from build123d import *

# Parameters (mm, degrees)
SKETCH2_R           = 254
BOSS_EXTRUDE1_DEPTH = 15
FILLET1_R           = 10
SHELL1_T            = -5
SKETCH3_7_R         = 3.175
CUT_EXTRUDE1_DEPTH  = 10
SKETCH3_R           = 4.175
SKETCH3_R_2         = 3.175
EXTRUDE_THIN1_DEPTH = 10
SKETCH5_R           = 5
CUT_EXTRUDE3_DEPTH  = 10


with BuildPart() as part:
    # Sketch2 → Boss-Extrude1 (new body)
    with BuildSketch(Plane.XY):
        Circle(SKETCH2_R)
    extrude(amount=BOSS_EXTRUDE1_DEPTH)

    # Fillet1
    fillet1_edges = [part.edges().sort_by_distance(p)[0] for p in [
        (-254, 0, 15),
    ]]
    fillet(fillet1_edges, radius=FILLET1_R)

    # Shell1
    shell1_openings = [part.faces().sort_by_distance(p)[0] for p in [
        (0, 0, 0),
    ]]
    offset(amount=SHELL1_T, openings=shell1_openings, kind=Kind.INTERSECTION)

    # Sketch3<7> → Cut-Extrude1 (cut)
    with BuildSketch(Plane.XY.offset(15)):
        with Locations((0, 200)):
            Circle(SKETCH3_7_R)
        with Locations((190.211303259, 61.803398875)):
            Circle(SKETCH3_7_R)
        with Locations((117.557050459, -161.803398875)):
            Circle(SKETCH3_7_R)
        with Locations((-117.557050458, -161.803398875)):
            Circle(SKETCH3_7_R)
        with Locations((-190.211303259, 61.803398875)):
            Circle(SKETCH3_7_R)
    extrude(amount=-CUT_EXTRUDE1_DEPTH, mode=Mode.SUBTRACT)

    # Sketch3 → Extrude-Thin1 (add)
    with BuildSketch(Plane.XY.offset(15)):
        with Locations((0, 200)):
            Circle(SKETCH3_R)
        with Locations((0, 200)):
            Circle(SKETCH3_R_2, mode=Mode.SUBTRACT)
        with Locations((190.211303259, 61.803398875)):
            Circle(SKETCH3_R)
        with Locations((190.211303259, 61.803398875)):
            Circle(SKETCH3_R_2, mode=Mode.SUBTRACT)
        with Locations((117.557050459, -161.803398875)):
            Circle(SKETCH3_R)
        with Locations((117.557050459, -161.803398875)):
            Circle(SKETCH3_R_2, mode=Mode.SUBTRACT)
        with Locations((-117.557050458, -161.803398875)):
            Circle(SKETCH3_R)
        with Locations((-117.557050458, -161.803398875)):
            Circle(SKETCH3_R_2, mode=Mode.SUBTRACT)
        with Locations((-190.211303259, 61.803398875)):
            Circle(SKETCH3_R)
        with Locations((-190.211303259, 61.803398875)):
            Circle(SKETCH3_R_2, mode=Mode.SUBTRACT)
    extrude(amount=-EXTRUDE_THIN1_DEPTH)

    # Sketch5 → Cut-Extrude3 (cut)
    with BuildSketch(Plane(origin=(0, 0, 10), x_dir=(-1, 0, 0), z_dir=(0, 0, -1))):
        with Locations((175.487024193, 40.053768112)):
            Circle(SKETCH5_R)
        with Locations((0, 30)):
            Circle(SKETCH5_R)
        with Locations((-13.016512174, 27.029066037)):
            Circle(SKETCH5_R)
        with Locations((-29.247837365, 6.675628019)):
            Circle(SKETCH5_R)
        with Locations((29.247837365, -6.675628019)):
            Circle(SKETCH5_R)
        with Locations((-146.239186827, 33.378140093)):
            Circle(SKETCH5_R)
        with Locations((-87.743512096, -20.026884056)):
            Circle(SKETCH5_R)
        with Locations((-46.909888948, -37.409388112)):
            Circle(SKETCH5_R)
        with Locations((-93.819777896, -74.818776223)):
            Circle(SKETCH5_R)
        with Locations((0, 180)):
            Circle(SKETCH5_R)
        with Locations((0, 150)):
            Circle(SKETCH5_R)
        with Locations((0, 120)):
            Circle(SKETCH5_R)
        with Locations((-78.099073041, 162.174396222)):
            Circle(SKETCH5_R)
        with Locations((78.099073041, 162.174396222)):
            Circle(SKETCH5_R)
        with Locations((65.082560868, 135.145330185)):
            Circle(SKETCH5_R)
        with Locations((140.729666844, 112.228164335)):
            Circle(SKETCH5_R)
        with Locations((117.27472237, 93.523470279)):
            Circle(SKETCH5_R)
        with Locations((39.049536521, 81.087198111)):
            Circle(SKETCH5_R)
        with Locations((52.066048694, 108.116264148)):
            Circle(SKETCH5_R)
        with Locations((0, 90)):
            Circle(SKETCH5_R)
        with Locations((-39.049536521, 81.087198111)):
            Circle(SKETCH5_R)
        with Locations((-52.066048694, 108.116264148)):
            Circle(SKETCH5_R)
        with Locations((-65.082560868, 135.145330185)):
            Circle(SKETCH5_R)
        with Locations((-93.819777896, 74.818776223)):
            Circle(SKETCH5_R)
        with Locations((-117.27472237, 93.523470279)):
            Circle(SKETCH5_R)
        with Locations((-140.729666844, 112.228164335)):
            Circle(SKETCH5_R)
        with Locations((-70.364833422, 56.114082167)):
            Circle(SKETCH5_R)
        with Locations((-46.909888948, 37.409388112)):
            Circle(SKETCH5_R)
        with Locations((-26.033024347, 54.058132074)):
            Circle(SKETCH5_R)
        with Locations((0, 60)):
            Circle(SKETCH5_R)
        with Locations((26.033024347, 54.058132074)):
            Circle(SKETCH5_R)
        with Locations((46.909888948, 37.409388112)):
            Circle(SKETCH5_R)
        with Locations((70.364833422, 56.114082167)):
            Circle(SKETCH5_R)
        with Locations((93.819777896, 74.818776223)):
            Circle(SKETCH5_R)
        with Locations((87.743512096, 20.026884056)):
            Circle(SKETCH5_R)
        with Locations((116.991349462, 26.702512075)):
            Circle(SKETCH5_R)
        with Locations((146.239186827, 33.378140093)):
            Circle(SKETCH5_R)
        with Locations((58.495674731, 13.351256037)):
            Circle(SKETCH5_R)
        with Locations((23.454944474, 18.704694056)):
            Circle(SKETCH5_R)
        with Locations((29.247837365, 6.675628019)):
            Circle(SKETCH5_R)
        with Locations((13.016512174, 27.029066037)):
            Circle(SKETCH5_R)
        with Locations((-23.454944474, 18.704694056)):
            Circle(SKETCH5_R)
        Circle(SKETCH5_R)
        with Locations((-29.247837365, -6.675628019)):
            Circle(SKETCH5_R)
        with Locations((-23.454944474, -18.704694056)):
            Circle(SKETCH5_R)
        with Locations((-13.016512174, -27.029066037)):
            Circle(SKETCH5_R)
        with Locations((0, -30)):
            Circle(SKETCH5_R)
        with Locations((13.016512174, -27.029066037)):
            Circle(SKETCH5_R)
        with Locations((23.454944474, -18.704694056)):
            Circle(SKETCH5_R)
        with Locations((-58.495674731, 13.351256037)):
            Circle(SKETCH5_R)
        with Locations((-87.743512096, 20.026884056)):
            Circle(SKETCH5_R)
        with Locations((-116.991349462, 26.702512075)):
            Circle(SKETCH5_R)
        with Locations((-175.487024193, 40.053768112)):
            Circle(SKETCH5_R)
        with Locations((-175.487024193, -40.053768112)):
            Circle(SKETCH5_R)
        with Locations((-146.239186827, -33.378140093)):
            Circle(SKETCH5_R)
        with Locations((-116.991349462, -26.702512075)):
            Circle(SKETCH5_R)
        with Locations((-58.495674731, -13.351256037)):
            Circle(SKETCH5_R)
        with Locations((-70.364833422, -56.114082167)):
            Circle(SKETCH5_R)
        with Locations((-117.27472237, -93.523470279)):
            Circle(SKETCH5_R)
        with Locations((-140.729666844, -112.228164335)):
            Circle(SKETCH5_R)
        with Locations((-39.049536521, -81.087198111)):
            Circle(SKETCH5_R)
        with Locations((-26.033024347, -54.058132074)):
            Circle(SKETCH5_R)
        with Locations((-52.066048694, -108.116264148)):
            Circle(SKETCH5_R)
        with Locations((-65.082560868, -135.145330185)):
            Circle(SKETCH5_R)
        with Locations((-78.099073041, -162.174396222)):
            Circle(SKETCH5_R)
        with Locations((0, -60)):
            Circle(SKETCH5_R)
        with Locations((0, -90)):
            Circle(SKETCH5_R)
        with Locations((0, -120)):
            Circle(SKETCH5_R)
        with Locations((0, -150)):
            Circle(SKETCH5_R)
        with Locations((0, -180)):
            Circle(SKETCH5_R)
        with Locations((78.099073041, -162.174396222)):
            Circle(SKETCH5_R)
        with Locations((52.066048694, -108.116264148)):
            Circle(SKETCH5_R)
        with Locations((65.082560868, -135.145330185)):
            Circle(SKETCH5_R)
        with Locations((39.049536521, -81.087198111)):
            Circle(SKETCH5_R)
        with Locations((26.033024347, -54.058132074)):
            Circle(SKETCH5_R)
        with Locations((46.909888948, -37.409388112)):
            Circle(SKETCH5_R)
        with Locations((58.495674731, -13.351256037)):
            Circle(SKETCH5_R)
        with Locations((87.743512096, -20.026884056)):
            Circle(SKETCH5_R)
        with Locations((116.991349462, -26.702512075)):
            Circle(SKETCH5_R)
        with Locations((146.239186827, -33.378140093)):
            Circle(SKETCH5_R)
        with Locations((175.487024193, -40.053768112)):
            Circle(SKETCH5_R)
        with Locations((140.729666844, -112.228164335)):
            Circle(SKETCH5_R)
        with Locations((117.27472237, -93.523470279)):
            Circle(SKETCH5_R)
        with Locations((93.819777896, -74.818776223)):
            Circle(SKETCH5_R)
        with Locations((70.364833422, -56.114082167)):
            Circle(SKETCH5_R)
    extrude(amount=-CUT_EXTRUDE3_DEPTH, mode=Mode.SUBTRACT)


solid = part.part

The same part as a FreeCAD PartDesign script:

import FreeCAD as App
import Part
import Sketcher
Q = App.Units.Quantity


def edges_at(feature, points):
    """Names of the edges that pass closest to the given points."""
    edges = feature.Shape.Edges
    near = lambda p: min(range(len(edges)), key=lambda i: edges[i].distToShape(Part.Vertex(*p))[0])
    return sorted({f"Edge{near(p) + 1}" for p in points})


def faces_at(feature, points):
    """Names of the faces that lie closest to the given points."""
    faces = feature.Shape.Faces
    near = lambda p: min(range(len(faces)), key=lambda i: faces[i].distToShape(Part.Vertex(*p))[0])
    return sorted({f"Face{near(p) + 1}" for p in points})

doc = App.newDocument("Part")
body = doc.addObject("PartDesign::Body", "Body")

# Sketch on XY plane
sketch1 = body.newObject("Sketcher::SketchObject", "Sketch")
sketch1.AttachmentSupport = (doc.getObject("XY_Plane"), [""])
sketch1.MapMode = "FlatFace"
sketch1.addGeometry(Part.Circle(App.Vector(0, 0, 0), App.Vector(0, 0, 1), 254), False)
sketch1.addConstraint([
    Sketcher.Constraint("Coincident", 0, 3, -1, 1),
    Sketcher.Constraint("Diameter", 0, Q("508 mm")),
])
pad1 = body.newObject("PartDesign::Pad", "Pad")
pad1.Profile = sketch1
pad1.Length = 15
doc.recompute()

fillet = body.newObject("PartDesign::Fillet", "Fillet")
fillet.Base = (pad1, edges_at(pad1, [(-254, 0, 15)]))
fillet.Radius = 10
doc.recompute()

thickness = body.newObject("PartDesign::Thickness", "Thickness")
thickness.Base = (fillet, faces_at(fillet, [(0, 0, 0)]))
thickness.Value = 5
thickness.Reversed = True
thickness.Join = "Intersection"

# Sketch on XY plane
sketch2 = body.newObject("Sketcher::SketchObject", "Sketch001")
sketch2.AttachmentSupport = (doc.getObject("XY_Plane"), [""])
sketch2.MapMode = "FlatFace"
sketch2.AttachmentOffset = App.Placement(App.Vector(0, 0, 15), App.Rotation())
sketch2.addGeometry([
    Part.Circle(App.Vector(0, 200, 0), App.Vector(0, 0, 1), 3.2),  # 0
    Part.Circle(App.Vector(190.2, 61.8, 0), App.Vector(0, 0, 1), 3.2),  # 1
    Part.Circle(App.Vector(117.6, -161.8, 0), App.Vector(0, 0, 1), 3.2),  # 2
    Part.Circle(App.Vector(-117.6, -161.8, 0), App.Vector(0, 0, 1), 3.2),  # 3
    Part.Circle(App.Vector(-190.2, 61.8, 0), App.Vector(0, 0, 1), 3.2),  # 4
], False)
sketch2.addConstraint([
    Sketcher.Constraint("Equal", 0, 1),
    Sketcher.Constraint("Equal", 1, 2),
    Sketcher.Constraint("Equal", 2, 3),
    Sketcher.Constraint("Equal", 3, 4),
    Sketcher.Constraint("Symmetric", 2, 3, 3, 3, -2),
    Sketcher.Constraint("Symmetric", 1, 3, 4, 3, -2),
    Sketcher.Constraint("PointOnObject", 0, 3, -2),
    Sketcher.Constraint("Diameter", 0, Q("6.35 mm")),
    Sketcher.Constraint("DistanceY", -1, 1, 0, 3, Q("200 mm")),
    Sketcher.Constraint("DistanceY", -1, 1, 1, 3, Q("61.803399 mm")),
    Sketcher.Constraint("DistanceY", 2, 3, -1, 1, Q("161.803399 mm")),
    Sketcher.Constraint("DistanceX", 3, 3, 2, 3, Q("235.114101 mm")),
    Sketcher.Constraint("DistanceX", -1, 1, 1, 3, Q("190.211303 mm")),
])
pocket1 = body.newObject("PartDesign::Pocket", "Pocket")
pocket1.Profile = sketch2
pocket1.Length = 10

# Sketch on XY plane
sketch3 = body.newObject("Sketcher::SketchObject", "Sketch002")
sketch3.AttachmentSupport = (doc.getObject("XY_Plane"), [""])
sketch3.MapMode = "FlatFace"
sketch3.AttachmentOffset = App.Placement(App.Vector(0, 0, 15), App.Rotation())
sketch3.addGeometry([
    Part.Circle(App.Vector(0, 200, 0), App.Vector(0, 0, 1), 4.2),  # 0
    Part.Circle(App.Vector(0, 200, 0), App.Vector(0, 0, 1), 3.2),  # 1
    Part.Circle(App.Vector(190.2, 61.8, 0), App.Vector(0, 0, 1), 4.2),  # 2
    Part.Circle(App.Vector(190.2, 61.8, 0), App.Vector(0, 0, 1), 3.2),  # 3
    Part.Circle(App.Vector(117.6, -161.8, 0), App.Vector(0, 0, 1), 4.2),  # 4
    Part.Circle(App.Vector(117.6, -161.8, 0), App.Vector(0, 0, 1), 3.2),  # 5
    Part.Circle(App.Vector(-117.6, -161.8, 0), App.Vector(0, 0, 1), 4.2),  # 6
    Part.Circle(App.Vector(-117.6, -161.8, 0), App.Vector(0, 0, 1), 3.2),  # 7
    Part.Circle(App.Vector(-190.2, 61.8, 0), App.Vector(0, 0, 1), 4.2),  # 8
    Part.Circle(App.Vector(-190.2, 61.8, 0), App.Vector(0, 0, 1), 3.2),  # 9
], False)
sketch3.addConstraint([
    Sketcher.Constraint("Coincident", 1, 3, 0, 3),
    Sketcher.Constraint("Coincident", 3, 3, 2, 3),
    Sketcher.Constraint("Coincident", 5, 3, 4, 3),
    Sketcher.Constraint("Coincident", 7, 3, 6, 3),
    Sketcher.Constraint("Coincident", 9, 3, 8, 3),
    Sketcher.Constraint("Equal", 0, 2),
    Sketcher.Constraint("Equal", 1, 3),
    Sketcher.Constraint("Equal", 2, 4),
    Sketcher.Constraint("Equal", 3, 5),
    Sketcher.Constraint("Equal", 4, 6),
    Sketcher.Constraint("Equal", 5, 7),
    Sketcher.Constraint("Equal", 6, 8),
    Sketcher.Constraint("Equal", 7, 9),
    Sketcher.Constraint("Symmetric", 4, 3, 6, 3, -2),
    Sketcher.Constraint("Symmetric", 2, 3, 8, 3, -2),
    Sketcher.Constraint("PointOnObject", 0, 3, -2),
    Sketcher.Constraint("Diameter", 0, Q("8.35 mm")),
    Sketcher.Constraint("Diameter", 1, Q("6.35 mm")),
    Sketcher.Constraint("DistanceY", -1, 1, 0, 3, Q("200 mm")),
    Sketcher.Constraint("DistanceY", -1, 1, 2, 3, Q("61.803399 mm")),
    Sketcher.Constraint("DistanceY", 4, 3, -1, 1, Q("161.803399 mm")),
    Sketcher.Constraint("DistanceX", 6, 3, 4, 3, Q("235.114101 mm")),
    Sketcher.Constraint("DistanceX", -1, 1, 2, 3, Q("190.211303 mm")),
])
pad2 = body.newObject("PartDesign::Pad", "Pad001")
pad2.Profile = sketch3
pad2.Length = 10
pad2.Reversed = True

# Sketch on XY plane
sketch4 = body.newObject("Sketcher::SketchObject", "Sketch003")
sketch4.AttachmentSupport = (doc.getObject("XY_Plane"), [""])
sketch4.MapMode = "FlatFace"
sketch4.AttachmentOffset = App.Placement(App.Vector(0, 0, 10), App.Rotation())
sketch4.addGeometry([
    Part.Circle(App.Vector(-175, 40, 0), App.Vector(0, 0, 1), 5),  # 0
    Part.Circle(App.Vector(0, 30, 0), App.Vector(0, 0, 1), 5),  # 1
    Part.Circle(App.Vector(13, 27, 0), App.Vector(0, 0, 1), 5),  # 2
    Part.Circle(App.Vector(29, 7, 0), App.Vector(0, 0, 1), 5),  # 3
    Part.Circle(App.Vector(-29, -7, 0), App.Vector(0, 0, 1), 5),  # 4
    Part.Circle(App.Vector(146, 33, 0), App.Vector(0, 0, 1), 5),  # 5
    Part.Circle(App.Vector(88, -20, 0), App.Vector(0, 0, 1), 5),  # 6
    Part.Circle(App.Vector(47, -37, 0), App.Vector(0, 0, 1), 5),  # 7
    Part.Circle(App.Vector(94, -75, 0), App.Vector(0, 0, 1), 5),  # 8
    Part.Circle(App.Vector(0, 180, 0), App.Vector(0, 0, 1), 5),  # 9
    Part.Circle(App.Vector(0, 150, 0), App.Vector(0, 0, 1), 5),  # 10
    Part.Circle(App.Vector(0, 120, 0), App.Vector(0, 0, 1), 5),  # 11
    Part.Circle(App.Vector(78, 162, 0), App.Vector(0, 0, 1), 5),  # 12
    Part.Circle(App.Vector(-78, 162, 0), App.Vector(0, 0, 1), 5),  # 13
    Part.Circle(App.Vector(-65, 135, 0), App.Vector(0, 0, 1), 5),  # 14
    Part.Circle(App.Vector(-141, 112, 0), App.Vector(0, 0, 1), 5),  # 15
    Part.Circle(App.Vector(-117, 94, 0), App.Vector(0, 0, 1), 5),  # 16
    Part.Circle(App.Vector(-39, 81, 0), App.Vector(0, 0, 1), 5),  # 17
    Part.Circle(App.Vector(-52, 108, 0), App.Vector(0, 0, 1), 5),  # 18
    Part.Circle(App.Vector(0, 90, 0), App.Vector(0, 0, 1), 5),  # 19
    Part.Circle(App.Vector(39, 81, 0), App.Vector(0, 0, 1), 5),  # 20
    Part.Circle(App.Vector(52, 108, 0), App.Vector(0, 0, 1), 5),  # 21
    Part.Circle(App.Vector(65, 135, 0), App.Vector(0, 0, 1), 5),  # 22
    Part.Circle(App.Vector(94, 75, 0), App.Vector(0, 0, 1), 5),  # 23
    Part.Circle(App.Vector(117, 94, 0), App.Vector(0, 0, 1), 5),  # 24
    Part.Circle(App.Vector(141, 112, 0), App.Vector(0, 0, 1), 5),  # 25
    Part.Circle(App.Vector(70, 56, 0), App.Vector(0, 0, 1), 5),  # 26
    Part.Circle(App.Vector(47, 37, 0), App.Vector(0, 0, 1), 5),  # 27
    Part.Circle(App.Vector(26, 54, 0), App.Vector(0, 0, 1), 5),  # 28
    Part.Circle(App.Vector(0, 60, 0), App.Vector(0, 0, 1), 5),  # 29
    Part.Circle(App.Vector(-26, 54, 0), App.Vector(0, 0, 1), 5),  # 30
    Part.Circle(App.Vector(-47, 37, 0), App.Vector(0, 0, 1), 5),  # 31
    Part.Circle(App.Vector(-70, 56, 0), App.Vector(0, 0, 1), 5),  # 32
    Part.Circle(App.Vector(-94, 75, 0), App.Vector(0, 0, 1), 5),  # 33
    Part.Circle(App.Vector(-88, 20, 0), App.Vector(0, 0, 1), 5),  # 34
    Part.Circle(App.Vector(-117, 27, 0), App.Vector(0, 0, 1), 5),  # 35
    Part.Circle(App.Vector(-146, 33, 0), App.Vector(0, 0, 1), 5),  # 36
    Part.Circle(App.Vector(-58, 13, 0), App.Vector(0, 0, 1), 5),  # 37
    Part.Circle(App.Vector(-23, 19, 0), App.Vector(0, 0, 1), 5),  # 38
    Part.Circle(App.Vector(-29, 7, 0), App.Vector(0, 0, 1), 5),  # 39
    Part.Circle(App.Vector(-13, 27, 0), App.Vector(0, 0, 1), 5),  # 40
    Part.Circle(App.Vector(23, 19, 0), App.Vector(0, 0, 1), 5),  # 41
    Part.Circle(App.Vector(0, 0, 0), App.Vector(0, 0, 1), 5),  # 42
    Part.Circle(App.Vector(29, -7, 0), App.Vector(0, 0, 1), 5),  # 43
    Part.Circle(App.Vector(23, -19, 0), App.Vector(0, 0, 1), 5),  # 44
    Part.Circle(App.Vector(13, -27, 0), App.Vector(0, 0, 1), 5),  # 45
    Part.Circle(App.Vector(0, -30, 0), App.Vector(0, 0, 1), 5),  # 46
    Part.Circle(App.Vector(-13, -27, 0), App.Vector(0, 0, 1), 5),  # 47
    Part.Circle(App.Vector(-23, -19, 0), App.Vector(0, 0, 1), 5),  # 48
    Part.Circle(App.Vector(58, 13, 0), App.Vector(0, 0, 1), 5),  # 49
    Part.Circle(App.Vector(88, 20, 0), App.Vector(0, 0, 1), 5),  # 50
    Part.Circle(App.Vector(117, 27, 0), App.Vector(0, 0, 1), 5),  # 51
    Part.Circle(App.Vector(175, 40, 0), App.Vector(0, 0, 1), 5),  # 52
    Part.Circle(App.Vector(175, -40, 0), App.Vector(0, 0, 1), 5),  # 53
    Part.Circle(App.Vector(146, -33, 0), App.Vector(0, 0, 1), 5),  # 54
    Part.Circle(App.Vector(117, -27, 0), App.Vector(0, 0, 1), 5),  # 55
    Part.Circle(App.Vector(58, -13, 0), App.Vector(0, 0, 1), 5),  # 56
    Part.Circle(App.Vector(70, -56, 0), App.Vector(0, 0, 1), 5),  # 57
    Part.Circle(App.Vector(117, -94, 0), App.Vector(0, 0, 1), 5),  # 58
    Part.Circle(App.Vector(141, -112, 0), App.Vector(0, 0, 1), 5),  # 59
    Part.Circle(App.Vector(39, -81, 0), App.Vector(0, 0, 1), 5),  # 60
    Part.Circle(App.Vector(26, -54, 0), App.Vector(0, 0, 1), 5),  # 61
    Part.Circle(App.Vector(52, -108, 0), App.Vector(0, 0, 1), 5),  # 62
    Part.Circle(App.Vector(65, -135, 0), App.Vector(0, 0, 1), 5),  # 63
    Part.Circle(App.Vector(78, -162, 0), App.Vector(0, 0, 1), 5),  # 64
    Part.Circle(App.Vector(0, -60, 0), App.Vector(0, 0, 1), 5),  # 65
    Part.Circle(App.Vector(0, -90, 0), App.Vector(0, 0, 1), 5),  # 66
    Part.Circle(App.Vector(0, -120, 0), App.Vector(0, 0, 1), 5),  # 67
    Part.Circle(App.Vector(0, -150, 0), App.Vector(0, 0, 1), 5),  # 68
    Part.Circle(App.Vector(0, -180, 0), App.Vector(0, 0, 1), 5),  # 69
    Part.Circle(App.Vector(-78, -162, 0), App.Vector(0, 0, 1), 5),  # 70
    Part.Circle(App.Vector(-52, -108, 0), App.Vector(0, 0, 1), 5),  # 71
    Part.Circle(App.Vector(-65, -135, 0), App.Vector(0, 0, 1), 5),  # 72
    Part.Circle(App.Vector(-39, -81, 0), App.Vector(0, 0, 1), 5),  # 73
    Part.Circle(App.Vector(-26, -54, 0), App.Vector(0, 0, 1), 5),  # 74
    Part.Circle(App.Vector(-47, -37, 0), App.Vector(0, 0, 1), 5),  # 75
    Part.Circle(App.Vector(-58, -13, 0), App.Vector(0, 0, 1), 5),  # 76
    Part.Circle(App.Vector(-88, -20, 0), App.Vector(0, 0, 1), 5),  # 77
    Part.Circle(App.Vector(-117, -27, 0), App.Vector(0, 0, 1), 5),  # 78
    Part.Circle(App.Vector(-146, -33, 0), App.Vector(0, 0, 1), 5),  # 79
    Part.Circle(App.Vector(-175, -40, 0), App.Vector(0, 0, 1), 5),  # 80
    Part.Circle(App.Vector(-141, -112, 0), App.Vector(0, 0, 1), 5),  # 81
    Part.Circle(App.Vector(-117, -94, 0), App.Vector(0, 0, 1), 5),  # 82
    Part.Circle(App.Vector(-94, -75, 0), App.Vector(0, 0, 1), 5),  # 83
    Part.Circle(App.Vector(-70, -56, 0), App.Vector(0, 0, 1), 5),  # 84
], False)
sketch4.addConstraint([
    Sketcher.Constraint("Coincident", 42, 3, -1, 1),
    Sketcher.Constraint("Equal", 0, 1),
    Sketcher.Constraint("Equal", 1, 2),
    Sketcher.Constraint("Equal", 2, 3),
    Sketcher.Constraint("Equal", 3, 4),
    Sketcher.Constraint("Equal", 4, 5),
    Sketcher.Constraint("Equal", 5, 6),
    Sketcher.Constraint("Equal", 6, 7),
    Sketcher.Constraint("Equal", 7, 8),
    Sketcher.Constraint("Equal", 8, 9),
    Sketcher.Constraint("Equal", 9, 10),
    Sketcher.Constraint("Equal", 10, 11),
    Sketcher.Constraint("Equal", 11, 12),
    Sketcher.Constraint("Equal", 12, 13),
    Sketcher.Constraint("Equal", 13, 14),
    Sketcher.Constraint("Equal", 14, 15),
    Sketcher.Constraint("Equal", 15, 16),
    Sketcher.Constraint("Equal", 16, 17),
    Sketcher.Constraint("Equal", 17, 18),
    Sketcher.Constraint("Equal", 18, 19),
    Sketcher.Constraint("Equal", 19, 20),
    Sketcher.Constraint("Equal", 20, 21),
    Sketcher.Constraint("Equal", 21, 22),
    Sketcher.Constraint("Equal", 22, 23),
    Sketcher.Constraint("Equal", 23, 24),
    Sketcher.Constraint("Equal", 24, 25),
    Sketcher.Constraint("Equal", 25, 26),
    Sketcher.Constraint("Equal", 26, 27),
    Sketcher.Constraint("Equal", 27, 28),
    Sketcher.Constraint("Equal", 28, 29),
    Sketcher.Constraint("Equal", 29, 30),
    Sketcher.Constraint("Equal", 30, 31),
    Sketcher.Constraint("Equal", 31, 32),
    Sketcher.Constraint("Equal", 32, 33),
    Sketcher.Constraint("Equal", 33, 34),
    Sketcher.Constraint("Equal", 34, 35),
    Sketcher.Constraint("Equal", 35, 36),
    Sketcher.Constraint("Equal", 36, 37),
    Sketcher.Constraint("Equal", 37, 38),
    Sketcher.Constraint("Equal", 38, 39),
    Sketcher.Constraint("Equal", 39, 40),
    Sketcher.Constraint("Equal", 40, 41),
    Sketcher.Constraint("Equal", 41, 42),
    Sketcher.Constraint("Equal", 42, 43),
    Sketcher.Constraint("Equal", 43, 44),
    Sketcher.Constraint("Equal", 44, 45),
    Sketcher.Constraint("Equal", 45, 46),
    Sketcher.Constraint("Equal", 46, 47),
    Sketcher.Constraint("Equal", 47, 48),
    Sketcher.Constraint("Equal", 48, 49),
    Sketcher.Constraint("Equal", 49, 50),
    Sketcher.Constraint("Equal", 50, 51),
    Sketcher.Constraint("Equal", 51, 52),
    Sketcher.Constraint("Equal", 52, 53),
    Sketcher.Constraint("Equal", 53, 54),
    Sketcher.Constraint("Equal", 54, 55),
    Sketcher.Constraint("Equal", 55, 56),
    Sketcher.Constraint("Equal", 56, 57),
    Sketcher.Constraint("Equal", 57, 58),
    Sketcher.Constraint("Equal", 58, 59),
    Sketcher.Constraint("Equal", 59, 60),
    Sketcher.Constraint("Equal", 60, 61),
    Sketcher.Constraint("Equal", 61, 62),
    Sketcher.Constraint("Equal", 62, 63),
    Sketcher.Constraint("Equal", 63, 64),
    Sketcher.Constraint("Equal", 64, 65),
    Sketcher.Constraint("Equal", 65, 66),
    Sketcher.Constraint("Equal", 66, 67),
    Sketcher.Constraint("Equal", 67, 68),
    Sketcher.Constraint("Equal", 68, 69),
    Sketcher.Constraint("Equal", 69, 70),
    Sketcher.Constraint("Equal", 70, 71),
    Sketcher.Constraint("Equal", 71, 72),
    Sketcher.Constraint("Equal", 72, 73),
    Sketcher.Constraint("Equal", 73, 74),
    Sketcher.Constraint("Equal", 74, 75),
    Sketcher.Constraint("Equal", 75, 76),
    Sketcher.Constraint("Equal", 76, 77),
    Sketcher.Constraint("Equal", 77, 78),
    Sketcher.Constraint("Equal", 78, 79),
    Sketcher.Constraint("Equal", 79, 80),
    Sketcher.Constraint("Equal", 80, 81),
    Sketcher.Constraint("Equal", 81, 82),
    Sketcher.Constraint("Equal", 82, 83),
    Sketcher.Constraint("Equal", 83, 84),
    Sketcher.Constraint("Symmetric", 3, 3, 4, 3, -1, 1),
    Sketcher.Constraint("Symmetric", 7, 3, 31, 3, -1, 1),
    Sketcher.Constraint("Symmetric", 8, 3, 33, 3, -1, 1),
    Sketcher.Constraint("Symmetric", 6, 3, 34, 3, -1, 1),
    Sketcher.Constraint("Symmetric", 39, 3, 43, 3, -1, 1),
    Sketcher.Constraint("Symmetric", 38, 3, 44, 3, -1, 1),
    Sketcher.Constraint("Symmetric", 40, 3, 45, 3, -1, 1),
    Sketcher.Constraint("Symmetric", 1, 3, 46, 3, -1, 1),
    Sketcher.Constraint("Symmetric", 2, 3, 47, 3, -1, 1),
    Sketcher.Constraint("Symmetric", 41, 3, 48, 3, -1, 1),
    Sketcher.Constraint("Symmetric", 0, 3, 53, 3, -1, 1),
    Sketcher.Constraint("Symmetric", 36, 3, 54, 3, -1, 1),
    Sketcher.Constraint("Symmetric", 35, 3, 55, 3, -1, 1),
    Sketcher.Constraint("Symmetric", 37, 3, 56, 3, -1, 1),
    Sketcher.Constraint("Symmetric", 32, 3, 57, 3, -1, 1),
    Sketcher.Constraint("Symmetric", 16, 3, 58, 3, -1, 1),
    Sketcher.Constraint("Symmetric", 15, 3, 59, 3, -1, 1),
    Sketcher.Constraint("Symmetric", 17, 3, 60, 3, -1, 1),
    Sketcher.Constraint("Symmetric", 30, 3, 61, 3, -1, 1),
    Sketcher.Constraint("Symmetric", 18, 3, 62, 3, -1, 1),
    Sketcher.Constraint("Symmetric", 14, 3, 63, 3, -1, 1),
    Sketcher.Constraint("Symmetric", 13, 3, 64, 3, -1, 1),
    Sketcher.Constraint("Symmetric", 29, 3, 65, 3, -1, 1),
    Sketcher.Constraint("Symmetric", 19, 3, 66, 3, -1, 1),
    Sketcher.Constraint("Symmetric", 11, 3, 67, 3, -1, 1),
    Sketcher.Constraint("Symmetric", 10, 3, 68, 3, -1, 1),
    Sketcher.Constraint("Symmetric", 9, 3, 69, 3, -1, 1),
    Sketcher.Constraint("Symmetric", 12, 3, 70, 3, -1, 1),
    Sketcher.Constraint("Symmetric", 21, 3, 71, 3, -1, 1),
    Sketcher.Constraint("Symmetric", 22, 3, 72, 3, -1, 1),
    Sketcher.Constraint("Symmetric", 20, 3, 73, 3, -1, 1),
    Sketcher.Constraint("Symmetric", 28, 3, 74, 3, -1, 1),
    Sketcher.Constraint("Symmetric", 27, 3, 75, 3, -1, 1),
    Sketcher.Constraint("Symmetric", 49, 3, 76, 3, -1, 1),
    Sketcher.Constraint("Symmetric", 50, 3, 77, 3, -1, 1),
    Sketcher.Constraint("Symmetric", 51, 3, 78, 3, -1, 1),
    Sketcher.Constraint("Symmetric", 5, 3, 79, 3, -1, 1),
    Sketcher.Constraint("Symmetric", 52, 3, 80, 3, -1, 1),
    Sketcher.Constraint("Symmetric", 25, 3, 81, 3, -1, 1),
    Sketcher.Constraint("Symmetric", 24, 3, 82, 3, -1, 1),
    Sketcher.Constraint("Symmetric", 23, 3, 83, 3, -1, 1),
    Sketcher.Constraint("Symmetric", 26, 3, 84, 3, -1, 1),
    Sketcher.Constraint("Symmetric", 12, 3, 13, 3, -2),
    Sketcher.Constraint("Symmetric", 17, 3, 20, 3, -2),
    Sketcher.Constraint("Symmetric", 18, 3, 21, 3, -2),
    Sketcher.Constraint("Symmetric", 14, 3, 22, 3, -2),
    Sketcher.Constraint("Symmetric", 16, 3, 24, 3, -2),
    Sketcher.Constraint("Symmetric", 15, 3, 25, 3, -2),
    Sketcher.Constraint("Symmetric", 28, 3, 30, 3, -2),
    Sketcher.Constraint("Symmetric", 27, 3, 31, 3, -2),
    Sketcher.Constraint("Symmetric", 26, 3, 32, 3, -2),
    Sketcher.Constraint("Symmetric", 23, 3, 33, 3, -2),
    Sketcher.Constraint("Symmetric", 5, 3, 36, 3, -2),
    Sketcher.Constraint("Symmetric", 3, 3, 39, 3, -2),
    Sketcher.Constraint("Symmetric", 2, 3, 40, 3, -2),
    Sketcher.Constraint("Symmetric", 38, 3, 41, 3, -2),
    Sketcher.Constraint("Symmetric", 37, 3, 49, 3, -2),
    Sketcher.Constraint("Symmetric", 34, 3, 50, 3, -2),
    Sketcher.Constraint("Symmetric", 35, 3, 51, 3, -2),
    Sketcher.Constraint("Symmetric", 0, 3, 52, 3, -2),
    Sketcher.Constraint("PointOnObject", 1, 3, -2),
    Sketcher.Constraint("PointOnObject", 9, 3, -2),
    Sketcher.Constraint("PointOnObject", 10, 3, -2),
    Sketcher.Constraint("PointOnObject", 11, 3, -2),
    Sketcher.Constraint("PointOnObject", 19, 3, -2),
    Sketcher.Constraint("PointOnObject", 29, 3, -2),
    Sketcher.Constraint("Diameter", 0, Q("10 mm")),
    Sketcher.Constraint("DistanceY", -1, 1, 1, 3, Q("30 mm")),
    Sketcher.Constraint("DistanceY", -1, 1, 9, 3, Q("180 mm")),
    Sketcher.Constraint("DistanceY", -1, 1, 10, 3, Q("150 mm")),
    Sketcher.Constraint("DistanceY", -1, 1, 11, 3, Q("120 mm")),
    Sketcher.Constraint("DistanceY", -1, 1, 19, 3, Q("90 mm")),
    Sketcher.Constraint("DistanceY", -1, 1, 29, 3, Q("60 mm")),
    Sketcher.Constraint("DistanceY", -1, 1, 17, 3, Q("81.087198 mm")),
    Sketcher.Constraint("DistanceY", -1, 1, 0, 3, Q("40.053768 mm")),
    Sketcher.Constraint("DistanceY", -1, 1, 3, 3, Q("6.675628 mm")),
    Sketcher.Constraint("DistanceY", -1, 1, 5, 3, Q("33.37814 mm")),
    Sketcher.Constraint("DistanceX", -1, 1, 7, 3, Q("46.909889 mm")),
    Sketcher.Constraint("DistanceY", 7, 3, -1, 1, Q("37.409388 mm")),
    Sketcher.Constraint("DistanceX", 14, 3, -1, 1, Q("65.082561 mm")),
    Sketcher.Constraint("DistanceY", -1, 1, 14, 3, Q("135.14533 mm")),
    Sketcher.Constraint("DistanceY", -1, 1, 16, 3, Q("93.52347 mm")),
    Sketcher.Constraint("DistanceX", 18, 3, -1, 1, Q("52.066049 mm")),
    Sketcher.Constraint("DistanceX", 35, 3, -1, 1, Q("116.991349 mm")),
    Sketcher.Constraint("DistanceX", 0, 3, -1, 1, Q("175.487024 mm")),
    Sketcher.Constraint("DistanceX", -1, 1, 2, 3, Q("13.016512 mm")),
    Sketcher.Constraint("DistanceY", -1, 1, 2, 3, Q("27.029066 mm")),
    Sketcher.Constraint("DistanceX", -1, 1, 3, 3, Q("29.247837 mm")),
    Sketcher.Constraint("DistanceX", -1, 1, 5, 3, Q("146.239187 mm")),
    Sketcher.Constraint("DistanceX", -1, 1, 6, 3, Q("87.743512 mm")),
    Sketcher.Constraint("DistanceY", 6, 3, -1, 1, Q("20.026884 mm")),
    Sketcher.Constraint("DistanceX", -1, 1, 8, 3, Q("93.819778 mm")),
    Sketcher.Constraint("DistanceY", 8, 3, -1, 1, Q("74.818776 mm")),
    Sketcher.Constraint("DistanceX", -1, 1, 12, 3, Q("78.099073 mm")),
    Sketcher.Constraint("DistanceY", -1, 1, 12, 3, Q("162.174396 mm")),
    Sketcher.Constraint("DistanceX", 15, 3, -1, 1, Q("140.729667 mm")),
    Sketcher.Constraint("DistanceY", -1, 1, 15, 3, Q("112.228164 mm")),
    Sketcher.Constraint("DistanceX", 16, 3, -1, 1, Q("117.274722 mm")),
    Sketcher.Constraint("DistanceX", 17, 3, -1, 1, Q("39.049537 mm")),
    Sketcher.Constraint("DistanceY", -1, 1, 18, 3, Q("108.116264 mm")),
    Sketcher.Constraint("DistanceX", -1, 1, 26, 3, Q("70.364833 mm")),
    Sketcher.Constraint("DistanceY", -1, 1, 26, 3, Q("56.114082 mm")),
    Sketcher.Constraint("DistanceX", -1, 1, 28, 3, Q("26.033024 mm")),
    Sketcher.Constraint("DistanceY", -1, 1, 28, 3, Q("54.058132 mm")),
    Sketcher.Constraint("DistanceY", -1, 1, 35, 3, Q("26.702512 mm")),
    Sketcher.Constraint("DistanceX", 37, 3, -1, 1, Q("58.495675 mm")),
    Sketcher.Constraint("DistanceY", -1, 1, 37, 3, Q("13.351256 mm")),
    Sketcher.Constraint("DistanceX", 38, 3, -1, 1, Q("23.454944 mm")),
    Sketcher.Constraint("DistanceY", -1, 1, 38, 3, Q("18.704694 mm")),
])
pocket2 = body.newObject("PartDesign::Pocket", "Pocket001")
pocket2.Profile = sketch4
pocket2.Length = 10
pocket2.Reversed = True

doc.recompute()
